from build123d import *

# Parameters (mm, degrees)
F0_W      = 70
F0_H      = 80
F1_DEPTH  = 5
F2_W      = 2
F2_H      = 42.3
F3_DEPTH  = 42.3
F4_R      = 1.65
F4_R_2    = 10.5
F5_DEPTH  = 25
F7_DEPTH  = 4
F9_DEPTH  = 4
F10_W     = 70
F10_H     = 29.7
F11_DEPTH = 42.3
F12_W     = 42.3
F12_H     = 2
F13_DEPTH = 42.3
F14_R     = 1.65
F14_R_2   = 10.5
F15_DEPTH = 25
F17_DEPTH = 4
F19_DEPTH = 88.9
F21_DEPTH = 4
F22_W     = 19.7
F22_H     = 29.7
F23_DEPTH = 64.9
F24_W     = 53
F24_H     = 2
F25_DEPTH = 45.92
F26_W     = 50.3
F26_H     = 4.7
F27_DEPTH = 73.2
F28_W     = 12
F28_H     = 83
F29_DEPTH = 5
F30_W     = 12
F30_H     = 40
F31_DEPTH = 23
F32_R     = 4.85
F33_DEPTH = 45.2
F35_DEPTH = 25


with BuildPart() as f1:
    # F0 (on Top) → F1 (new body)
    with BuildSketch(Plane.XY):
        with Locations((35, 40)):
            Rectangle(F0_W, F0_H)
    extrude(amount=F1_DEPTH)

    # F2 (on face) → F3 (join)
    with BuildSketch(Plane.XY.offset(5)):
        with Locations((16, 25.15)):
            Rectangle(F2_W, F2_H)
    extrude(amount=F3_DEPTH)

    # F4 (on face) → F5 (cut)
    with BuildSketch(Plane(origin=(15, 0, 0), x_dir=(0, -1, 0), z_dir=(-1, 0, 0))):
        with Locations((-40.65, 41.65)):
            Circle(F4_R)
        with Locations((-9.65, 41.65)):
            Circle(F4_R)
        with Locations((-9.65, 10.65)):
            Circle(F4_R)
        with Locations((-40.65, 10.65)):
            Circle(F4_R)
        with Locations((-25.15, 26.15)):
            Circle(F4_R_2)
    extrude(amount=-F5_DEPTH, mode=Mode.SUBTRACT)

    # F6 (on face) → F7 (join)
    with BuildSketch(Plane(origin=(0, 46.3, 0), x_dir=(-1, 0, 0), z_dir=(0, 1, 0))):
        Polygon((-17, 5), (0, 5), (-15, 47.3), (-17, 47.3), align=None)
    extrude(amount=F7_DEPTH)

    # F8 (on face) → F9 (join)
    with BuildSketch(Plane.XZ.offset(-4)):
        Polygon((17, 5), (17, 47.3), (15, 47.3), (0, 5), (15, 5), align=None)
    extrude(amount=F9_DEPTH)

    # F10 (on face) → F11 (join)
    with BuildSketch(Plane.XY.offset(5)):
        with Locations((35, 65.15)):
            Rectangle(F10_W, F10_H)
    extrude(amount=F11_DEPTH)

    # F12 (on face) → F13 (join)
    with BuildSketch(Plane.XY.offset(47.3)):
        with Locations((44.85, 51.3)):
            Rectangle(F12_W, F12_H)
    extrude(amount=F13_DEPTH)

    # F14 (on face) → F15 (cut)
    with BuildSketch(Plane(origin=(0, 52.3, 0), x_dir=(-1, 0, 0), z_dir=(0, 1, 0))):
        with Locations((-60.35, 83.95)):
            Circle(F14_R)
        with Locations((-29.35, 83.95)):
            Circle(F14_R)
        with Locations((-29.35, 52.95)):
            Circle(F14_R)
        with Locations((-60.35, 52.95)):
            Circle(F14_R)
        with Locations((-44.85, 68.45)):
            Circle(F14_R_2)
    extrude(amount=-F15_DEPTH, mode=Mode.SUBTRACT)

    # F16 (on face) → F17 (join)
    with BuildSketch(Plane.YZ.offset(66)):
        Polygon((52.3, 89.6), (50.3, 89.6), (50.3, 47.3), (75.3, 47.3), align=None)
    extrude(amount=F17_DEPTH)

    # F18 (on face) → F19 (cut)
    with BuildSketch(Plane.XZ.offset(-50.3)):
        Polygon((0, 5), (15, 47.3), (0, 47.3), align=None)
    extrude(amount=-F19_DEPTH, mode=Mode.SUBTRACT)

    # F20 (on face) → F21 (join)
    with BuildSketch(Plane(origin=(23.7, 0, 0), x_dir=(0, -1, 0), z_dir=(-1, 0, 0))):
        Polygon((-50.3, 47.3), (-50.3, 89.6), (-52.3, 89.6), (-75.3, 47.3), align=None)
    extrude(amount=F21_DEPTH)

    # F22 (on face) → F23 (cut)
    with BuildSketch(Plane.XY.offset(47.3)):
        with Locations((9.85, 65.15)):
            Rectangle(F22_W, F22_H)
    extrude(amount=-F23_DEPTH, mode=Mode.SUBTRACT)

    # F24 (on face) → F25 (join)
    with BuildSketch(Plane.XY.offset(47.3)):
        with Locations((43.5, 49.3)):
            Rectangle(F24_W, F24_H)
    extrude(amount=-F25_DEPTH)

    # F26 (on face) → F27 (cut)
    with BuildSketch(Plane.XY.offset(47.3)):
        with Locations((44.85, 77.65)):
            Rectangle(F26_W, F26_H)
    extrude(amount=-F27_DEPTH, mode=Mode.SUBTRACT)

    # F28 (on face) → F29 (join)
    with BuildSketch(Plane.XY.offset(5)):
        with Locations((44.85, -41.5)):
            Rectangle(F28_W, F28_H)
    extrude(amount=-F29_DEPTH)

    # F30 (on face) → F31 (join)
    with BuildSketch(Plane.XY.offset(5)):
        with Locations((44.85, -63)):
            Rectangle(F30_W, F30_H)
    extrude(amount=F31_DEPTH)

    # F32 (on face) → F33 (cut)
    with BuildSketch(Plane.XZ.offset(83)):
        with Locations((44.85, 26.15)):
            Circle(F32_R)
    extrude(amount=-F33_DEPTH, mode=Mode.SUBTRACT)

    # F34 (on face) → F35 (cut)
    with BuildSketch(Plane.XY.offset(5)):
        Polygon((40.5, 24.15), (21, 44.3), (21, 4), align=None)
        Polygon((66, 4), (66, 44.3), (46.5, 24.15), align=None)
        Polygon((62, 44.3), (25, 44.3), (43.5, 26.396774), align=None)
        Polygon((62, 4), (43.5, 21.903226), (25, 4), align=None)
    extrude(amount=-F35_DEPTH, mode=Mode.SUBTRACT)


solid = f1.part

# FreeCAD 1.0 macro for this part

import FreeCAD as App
import Part
import Sketcher

doc = App.newDocument("Part")
body = doc.addObject("PartDesign::Body", "Body")

# Sketch on XY plane
sketch1 = doc.addObject("Sketcher::SketchObject", "Sketch")
body.addObject(sketch1)
sketch1.AttachmentSupport = (doc.XY_Plane, [""])
sketch1.MapMode = "FlatFace"
sketch1.addGeometry(Part.LineSegment(App.Vector(0, 80, 0), App.Vector(0, 0, 0)), False)
sketch1.addGeometry(Part.LineSegment(App.Vector(0, 0, 0), App.Vector(70, 0, 0)), False)
sketch1.addGeometry(Part.LineSegment(App.Vector(70, 0, 0), App.Vector(70, 80, 0)), False)
sketch1.addGeometry(Part.LineSegment(App.Vector(70, 80, 0), App.Vector(0, 80, 0)), False)
sketch1.addConstraint(Sketcher.Constraint("Coincident", 0, 2, 1, 1))
sketch1.addConstraint(Sketcher.Constraint("Coincident", 1, 2, 2, 1))
sketch1.addConstraint(Sketcher.Constraint("Coincident", 2, 2, 3, 1))
sketch1.addConstraint(Sketcher.Constraint("Coincident", 3, 2, 0, 1))
sketch1.addConstraint(Sketcher.Constraint("Vertical", 0))
sketch1.addConstraint(Sketcher.Constraint("Horizontal", 1))
sketch1.addConstraint(Sketcher.Constraint("Vertical", 2))
sketch1.addConstraint(Sketcher.Constraint("Horizontal", 3))
sketch1.addConstraint(Sketcher.Constraint("Coincident", 0, 2, -1, 1))
sketch1.addConstraint(Sketcher.Constraint("DistanceX", 1, 1, 1, 2, 70.0))
sketch1.addConstraint(Sketcher.Constraint("DistanceY", 0, 2, 0, 1, 80.0))
pad1 = doc.addObject("PartDesign::Pad", "Pad")
body.addObject(pad1)
pad1.Profile = sketch1
pad1.Length = 5

# Sketch on XY plane
sketch2 = doc.addObject("Sketcher::SketchObject", "Sketch001")
body.addObject(sketch2)
sketch2.AttachmentSupport = (doc.XY_Plane, [""])
sketch2.MapMode = "FlatFace"
sketch2.AttachmentOffset = App.Placement(App.Vector(0, 0, 5), App.Rotation())
sketch2.addGeometry(Part.LineSegment(App.Vector(15, 46.3, 0), App.Vector(15, 4, 0)), False)
sketch2.addGeometry(Part.LineSegment(App.Vector(15, 4, 0), App.Vector(17, 4, 0)), False)
sketch2.addGeometry(Part.LineSegment(App.Vector(17, 4, 0), App.Vector(17, 46.3, 0)), False)
sketch2.addGeometry(Part.LineSegment(App.Vector(17, 46.3, 0), App.Vector(15, 46.3, 0)), False)
sketch2.addConstraint(Sketcher.Constraint("Coincident", 0, 2, 1, 1))
sketch2.addConstraint(Sketcher.Constraint("Coincident", 1, 2, 2, 1))
sketch2.addConstraint(Sketcher.Constraint("Coincident", 2, 2, 3, 1))
sketch2.addConstraint(Sketcher.Constraint("Coincident", 3, 2, 0, 1))
sketch2.addConstraint(Sketcher.Constraint("Vertical", 0))
sketch2.addConstraint(Sketcher.Constraint("Horizontal", 1))
sketch2.addConstraint(Sketcher.Constraint("Vertical", 2))
sketch2.addConstraint(Sketcher.Constraint("Horizontal", 3))
sketch2.addConstraint(Sketcher.Constraint("DistanceX", 1, 1, 1, 2, 2.0))
sketch2.addConstraint(Sketcher.Constraint("DistanceY", 0, 2, 0, 1, 42.3))
sketch2.addConstraint(Sketcher.Constraint("DistanceX", -1, 1, 0, 2, 15.0))
sketch2.addConstraint(Sketcher.Constraint("DistanceY", -1, 1, 0, 2, 4.0))
pad2 = doc.addObject("PartDesign::Pad", "Pad001")
body.addObject(pad2)
pad2.Profile = sketch2
pad2.Length = 42.3

# Sketch on YZ plane
sketch3 = doc.addObject("Sketcher::SketchObject", "Sketch002")
body.addObject(sketch3)
sketch3.AttachmentSupport = (doc.YZ_Plane, [""])
sketch3.MapMode = "FlatFace"
sketch3.AttachmentOffset = App.Placement(App.Vector(0, 0, 15), App.Rotation())
sketch3.addGeometry(Part.Circle(App.Vector(40.6, 41.6, 0), App.Vector(0, 0, 1), 1.6), False)
sketch3.addGeometry(Part.Circle(App.Vector(9.7, 41.6, 0), App.Vector(0, 0, 1), 1.6), False)
sketch3.addGeometry(Part.Circle(App.Vector(9.7, 10.7, 0), App.Vector(0, 0, 1), 1.6), False)
sketch3.addGeometry(Part.Circle(App.Vector(40.6, 10.7, 0), App.Vector(0, 0, 1), 1.6), False)
sketch3.addGeometry(Part.Circle(App.Vector(25.1, 26.1, 0), App.Vector(0, 0, 1), 10.5), False)
sketch3.addConstraint(Sketcher.Constraint("Equal", 0, 1))
sketch3.addConstraint(Sketcher.Constraint("Equal", 1, 2))
sketch3.addConstraint(Sketcher.Constraint("Equal", 2, 3))
sketch3.addConstraint(Sketcher.Constraint("Horizontal", 0, 3, 1, 3))
sketch3.addConstraint(Sketcher.Constraint("Horizontal", 2, 3, 3, 3))
sketch3.addConstraint(Sketcher.Constraint("Vertical", 1, 3, 2, 3))
sketch3.addConstraint(Sketcher.Constraint("Vertical", 0, 3, 3, 3))
sketch3.addConstraint(Sketcher.Constraint("Diameter", 4, 21.0))
sketch3.addConstraint(Sketcher.Constraint("Diameter", 0, 3.3))
sketch3.addConstraint(Sketcher.Constraint("DistanceX", 1, 3, 0, 3, 31.0))
sketch3.addConstraint(Sketcher.Constraint("DistanceY", 2, 3, 1, 3, 31.0))
sketch3.addConstraint(Sketcher.Constraint("DistanceX", 2, 3, 4, 3, 15.5))
sketch3.addConstraint(Sketcher.Constraint("DistanceY", 2, 3, 4, 3, 15.5))
sketch3.addConstraint(Sketcher.Constraint("DistanceX", -1, 1, 0, 3, 40.65))
sketch3.addConstraint(Sketcher.Constraint("DistanceY", -1, 1, 0, 3, 41.65))
pocket1 = doc.addObject("PartDesign::Pocket", "Pocket")
body.addObject(pocket1)
pocket1.Profile = sketch3
pocket1.Length = 25
pocket1.Reversed = True

# Sketch on XZ plane
sketch4 = doc.addObject("Sketcher::SketchObject", "Sketch003")
body.addObject(sketch4)
sketch4.AttachmentSupport = (doc.XZ_Plane, [""])
sketch4.MapMode = "FlatFace"
sketch4.AttachmentOffset = App.Placement(App.Vector(0, 0, -46.3), App.Rotation())
sketch4.addGeometry(Part.LineSegment(App.Vector(17, 5, 0), App.Vector(0, 5, 0)), False)
sketch4.addGeometry(Part.LineSegment(App.Vector(0, 5, 0), App.Vector(15, 47.3, 0)), False)
sketch4.addGeometry(Part.LineSegment(App.Vector(15, 47.3, 0), App.Vector(17, 47.3, 0)), False)
sketch4.addGeometry(Part.LineSegment(App.Vector(17, 47.3, 0), App.Vector(17, 5, 0)), False)
sketch4.addConstraint(Sketcher.Constraint("Coincident", 0, 2, 1, 1))
sketch4.addConstraint(Sketcher.Constraint("Coincident", 1, 2, 2, 1))
sketch4.addConstraint(Sketcher.Constraint("Coincident", 2, 2, 3, 1))
sketch4.addConstraint(Sketcher.Constraint("Coincident", 3, 2, 0, 1))
sketch4.addConstraint(Sketcher.Constraint("Horizontal", 0))
sketch4.addConstraint(Sketcher.Constraint("Horizontal", 2))
sketch4.addConstraint(Sketcher.Constraint("Vertical", 3))
sketch4.addConstraint(Sketcher.Constraint("PointOnObject", 0, 2, -2))
sketch4.addConstraint(Sketcher.Constraint("DistanceX", 0, 2, 0, 1, 17.0))
sketch4.addConstraint(Sketcher.Constraint("DistanceX", 2, 1, 2, 2, 2.0))
sketch4.addConstraint(Sketcher.Constraint("DistanceY", 3, 2, 3, 1, 42.3))
sketch4.addConstraint(Sketcher.Constraint("DistanceY", -1, 1, 0, 2, 5.0))
pad3 = doc.addObject("PartDesign::Pad", "Pad002")
body.addObject(pad3)
pad3.Profile = sketch4
pad3.Length = 4
pad3.Reversed = True

# Sketch on XZ plane
sketch5 = doc.addObject("Sketcher::SketchObject", "Sketch004")
body.addObject(sketch5)
sketch5.AttachmentSupport = (doc.XZ_Plane, [""])
sketch5.MapMode = "FlatFace"
sketch5.AttachmentOffset = App.Placement(App.Vector(0, 0, -4), App.Rotation())
sketch5.addGeometry(Part.LineSegment(App.Vector(17, 5, 0), App.Vector(17, 47.3, 0)), False)
sketch5.addGeometry(Part.LineSegment(App.Vector(17, 47.3, 0), App.Vector(15, 47.3, 0)), False)
sketch5.addGeometry(Part.LineSegment(App.Vector(15, 47.3, 0), App.Vector(0, 5, 0)), False)
sketch5.addGeometry(Part.LineSegment(App.Vector(0, 5, 0), App.Vector(17, 5, 0)), False)
sketch5.addConstraint(Sketcher.Constraint("Coincident", 0, 2, 1, 1))
sketch5.addConstraint(Sketcher.Constraint("Coincident", 1, 2, 2, 1))
sketch5.addConstraint(Sketcher.Constraint("Coincident", 2, 2, 3, 1))
sketch5.addConstraint(Sketcher.Constraint("Coincident", 3, 2, 0, 1))
sketch5.addConstraint(Sketcher.Constraint("Vertical", 0))
sketch5.addConstraint(Sketcher.Constraint("Horizontal", 1))
sketch5.addConstraint(Sketcher.Constraint("Horizontal", 3))
sketch5.addConstraint(Sketcher.Constraint("PointOnObject", 2, 2, -2))
sketch5.addConstraint(Sketcher.Constraint("DistanceX", 1, 2, 1, 1, 2.0))
sketch5.addConstraint(Sketcher.Constraint("DistanceX", 3, 1, 3, 2, 17.0))
sketch5.addConstraint(Sketcher.Constraint("DistanceY", 0, 1, 0, 2, 42.3))
sketch5.addConstraint(Sketcher.Constraint("DistanceY", -1, 1, 2, 2, 5.0))
pad4 = doc.addObject("PartDesign::Pad", "Pad003")
body.addObject(pad4)
pad4.Profile = sketch5
pad4.Length = 4

# Sketch on XY plane
sketch6 = doc.addObject("Sketcher::SketchObject", "Sketch005")
body.addObject(sketch6)
sketch6.AttachmentSupport = (doc.XY_Plane, [""])
sketch6.MapMode = "FlatFace"
sketch6.AttachmentOffset = App.Placement(App.Vector(0, 0, 5), App.Rotation())
sketch6.addGeometry(Part.LineSegment(App.Vector(0, 80, 0), App.Vector(0, 50, 0)), False)
sketch6.addGeometry(Part.LineSegment(App.Vector(0, 50, 0), App.Vector(70, 50, 0)), False)
sketch6.addGeometry(Part.LineSegment(App.Vector(70, 50, 0), App.Vector(70, 80, 0)), False)
sketch6.addGeometry(Part.LineSegment(App.Vector(70, 80, 0), App.Vector(0, 80, 0)), False)
sketch6.addConstraint(Sketcher.Constraint("Coincident", 0, 2, 1, 1))
sketch6.addConstraint(Sketcher.Constraint("Coincident", 1, 2, 2, 1))
sketch6.addConstraint(Sketcher.Constraint("Coincident", 2, 2, 3, 1))
sketch6.addConstraint(Sketcher.Constraint("Coincident", 3, 2, 0, 1))
sketch6.addConstraint(Sketcher.Constraint("Vertical", 0))
sketch6.addConstraint(Sketcher.Constraint("Horizontal", 1))
sketch6.addConstraint(Sketcher.Constraint("Vertical", 2))
sketch6.addConstraint(Sketcher.Constraint("Horizontal", 3))
sketch6.addConstraint(Sketcher.Constraint("PointOnObject", 0, 2, -2))
sketch6.addConstraint(Sketcher.Constraint("DistanceX", 1, 1, 1, 2, 70.0))
sketch6.addConstraint(Sketcher.Constraint("DistanceY", 0, 2, 0, 1, 29.7))
sketch6.addConstraint(Sketcher.Constraint("DistanceY", -1, 1, 2, 2, 80.0))
pad5 = doc.addObject("PartDesign::Pad", "Pad004")
body.addObject(pad5)
pad5.Profile = sketch6
pad5.Length = 42.3

# Sketch on XY plane
sketch7 = doc.addObject("Sketcher::SketchObject", "Sketch006")
body.addObject(sketch7)
sketch7.AttachmentSupport = (doc.XY_Plane, [""])
sketch7.MapMode = "FlatFace"
sketch7.AttachmentOffset = App.Placement(App.Vector(0, 0, 47.3), App.Rotation())
sketch7.addGeometry(Part.LineSegment(App.Vector(23.7, 52.3, 0), App.Vector(23.7, 50.3, 0)), False)
sketch7.addGeometry(Part.LineSegment(App.Vector(23.7, 50.3, 0), App.Vector(66, 50.3, 0)), False)
sketch7.addGeometry(Part.LineSegment(App.Vector(66, 50.3, 0), App.Vector(66, 52.3, 0)), False)
sketch7.addGeometry(Part.LineSegment(App.Vector(66, 52.3, 0), App.Vector(23.7, 52.3, 0)), False)
sketch7.addConstraint(Sketcher.Constraint("Coincident", 0, 2, 1, 1))
sketch7.addConstraint(Sketcher.Constraint("Coincident", 1, 2, 2, 1))
sketch7.addConstraint(Sketcher.Constraint("Coincident", 2, 2, 3, 1))
sketch7.addConstraint(Sketcher.Constraint("Coincident", 3, 2, 0, 1))
sketch7.addConstraint(Sketcher.Constraint("Vertical", 0))
sketch7.addConstraint(Sketcher.Constraint("Horizontal", 1))
sketch7.addConstraint(Sketcher.Constraint("Vertical", 2))
sketch7.addConstraint(Sketcher.Constraint("Horizontal", 3))
sketch7.addConstraint(Sketcher.Constraint("DistanceY", 0, 2, 0, 1, 2.0))
sketch7.addConstraint(Sketcher.Constraint("DistanceX", 1, 1, 1, 2, 42.3))
sketch7.addConstraint(Sketcher.Constraint("DistanceX", -1, 1, 1, 2, 66.0))
sketch7.addConstraint(Sketcher.Constraint("DistanceY", -1, 1, 0, 2, 50.3))
pad6 = doc.addObject("PartDesign::Pad", "Pad005")
body.addObject(pad6)
pad6.Profile = sketch7
pad6.Length = 42.3

# Sketch on XZ plane
sketch8 = doc.addObject("Sketcher::SketchObject", "Sketch007")
body.addObject(sketch8)
sketch8.AttachmentSupport = (doc.XZ_Plane, [""])
sketch8.MapMode = "FlatFace"
sketch8.AttachmentOffset = App.Placement(App.Vector(0, 0, -52.3), App.Rotation())
sketch8.addGeometry(Part.Circle(App.Vector(60.4, 84, 0), App.Vector(0, 0, 1), 1.6), False)
sketch8.addGeometry(Part.Circle(App.Vector(29.4, 84, 0), App.Vector(0, 0, 1), 1.6), False)
sketch8.addGeometry(Part.Circle(App.Vector(29.4, 53, 0), App.Vector(0, 0, 1), 1.6), False)
sketch8.addGeometry(Part.Circle(App.Vector(60.4, 53, 0), App.Vector(0, 0, 1), 1.6), False)
sketch8.addGeometry(Part.Circle(App.Vector(44.9, 68.5, 0), App.Vector(0, 0, 1), 10.5), False)
sketch8.addConstraint(Sketcher.Constraint("Equal", 0, 1))
sketch8.addConstraint(Sketcher.Constraint("Equal", 1, 2))
sketch8.addConstraint(Sketcher.Constraint("Equal", 2, 3))
sketch8.addConstraint(Sketcher.Constraint("Horizontal", 0, 3, 1, 3))
sketch8.addConstraint(Sketcher.Constraint("Horizontal", 2, 3, 3, 3))
sketch8.addConstraint(Sketcher.Constraint("Vertical", 1, 3, 2, 3))
sketch8.addConstraint(Sketcher.Constraint("Vertical", 0, 3, 3, 3))
sketch8.addConstraint(Sketcher.Constraint("Diameter", 4, 21.0))
sketch8.addConstraint(Sketcher.Constraint("Diameter", 0, 3.3))
sketch8.addConstraint(Sketcher.Constraint("DistanceX", 1, 3, 0, 3, 31.0))
sketch8.addConstraint(Sketcher.Constraint("DistanceY", 2, 3, 1, 3, 31.0))
sketch8.addConstraint(Sketcher.Constraint("DistanceX", 4, 3, 0, 3, 15.5))
sketch8.addConstraint(Sketcher.Constraint("DistanceY", 4, 3, 0, 3, 15.5))
sketch8.addConstraint(Sketcher.Constraint("DistanceX", -1, 1, 0, 3, 60.35))
sketch8.addConstraint(Sketcher.Constraint("DistanceY", -1, 1, 0, 3, 83.95))
pocket2 = doc.addObject("PartDesign::Pocket", "Pocket001")
body.addObject(pocket2)
pocket2.Profile = sketch8
pocket2.Length = 25
pocket2.Reversed = True

# Sketch on YZ plane
sketch9 = doc.addObject("Sketcher::SketchObject", "Sketch008")
body.addObject(sketch9)
sketch9.AttachmentSupport = (doc.YZ_Plane, [""])
sketch9.MapMode = "FlatFace"
sketch9.AttachmentOffset = App.Placement(App.Vector(0, 0, 66), App.Rotation())
sketch9.addGeometry(Part.LineSegment(App.Vector(52.3, 89.6, 0), App.Vector(50.3, 89.6, 0)), False)
sketch9.addGeometry(Part.LineSegment(App.Vector(50.3, 89.6, 0), App.Vector(50.3, 47.3, 0)), False)
sketch9.addGeometry(Part.LineSegment(App.Vector(50.3, 47.3, 0), App.Vector(75.3, 47.3, 0)), False)
sketch9.addGeometry(Part.LineSegment(App.Vector(75.3, 47.3, 0), App.Vector(52.3, 89.6, 0)), False)
sketch9.addConstraint(Sketcher.Constraint("Coincident", 0, 2, 1, 1))
sketch9.addConstraint(Sketcher.Constraint("Coincident", 1, 2, 2, 1))
sketch9.addConstraint(Sketcher.Constraint("Coincident", 2, 2, 3, 1))
sketch9.addConstraint(Sketcher.Constraint("Coincident", 3, 2, 0, 1))
sketch9.addConstraint(Sketcher.Constraint("Horizontal", 0))
sketch9.addConstraint(Sketcher.Constraint("Vertical", 1))
sketch9.addConstraint(Sketcher.Constraint("Horizontal", 2))
sketch9.addConstraint(Sketcher.Constraint("DistanceX", 0, 2, 0, 1, 2.0))
sketch9.addConstraint(Sketcher.Constraint("DistanceX", 2, 1, 2, 2, 25.0))
sketch9.addConstraint(Sketcher.Constraint("DistanceY", 1, 2, 1, 1, 42.3))
sketch9.addConstraint(Sketcher.Constraint("DistanceX", -1, 1, 0, 2, 50.3))
sketch9.addConstraint(Sketcher.Constraint("DistanceY", -1, 1, 0, 2, 89.6))
pad7 = doc.addObject("PartDesign::Pad", "Pad006")
body.addObject(pad7)
pad7.Profile = sketch9
pad7.Length = 4

# Sketch on XZ plane
sketch10 = doc.addObject("Sketcher::SketchObject", "Sketch009")
body.addObject(sketch10)
sketch10.AttachmentSupport = (doc.XZ_Plane, [""])
sketch10.MapMode = "FlatFace"
sketch10.AttachmentOffset = App.Placement(App.Vector(0, 0, -50.3), App.Rotation())
sketch10.addGeometry(Part.LineSegment(App.Vector(0, 5, 0), App.Vector(15, 47, 0)), False)
sketch10.addGeometry(Part.LineSegment(App.Vector(15, 47, 0), App.Vector(0, 47, 0)), False)
sketch10.addGeometry(Part.LineSegment(App.Vector(0, 47, 0), App.Vector(0, 5, 0)), False)
sketch10.addConstraint(Sketcher.Constraint("Coincident", 0, 2, 1, 1))
sketch10.addConstraint(Sketcher.Constraint("Coincident", 1, 2, 2, 1))
sketch10.addConstraint(Sketcher.Constraint("Coincident", 2, 2, 0, 1))
sketch10.addConstraint(Sketcher.Constraint("Horizontal", 1))
sketch10.addConstraint(Sketcher.Constraint("Vertical", 2))
sketch10.addConstraint(Sketcher.Constraint("PointOnObject", 1, 2, -2))
sketch10.addConstraint(Sketcher.Constraint("DistanceX", 1, 2, 1, 1, 15.0))
sketch10.addConstraint(Sketcher.Constraint("DistanceY", 2, 2, 2, 1, 42.3))
sketch10.addConstraint(Sketcher.Constraint("DistanceY", -1, 1, 2, 2, 5.0))
pocket3 = doc.addObject("PartDesign::Pocket", "Pocket002")
body.addObject(pocket3)
pocket3.Profile = sketch10
pocket3.Length = 88.9

# Sketch on YZ plane
sketch11 = doc.addObject("Sketcher::SketchObject", "Sketch010")
body.addObject(sketch11)
sketch11.AttachmentSupport = (doc.YZ_Plane, [""])
sketch11.MapMode = "FlatFace"
sketch11.AttachmentOffset = App.Placement(App.Vector(0, 0, 23.7), App.Rotation())
sketch11.addGeometry(Part.LineSegment(App.Vector(50.3, 47.3, 0), App.Vector(50.3, 89.6, 0)), False)
sketch11.addGeometry(Part.LineSegment(App.Vector(50.3, 89.6, 0), App.Vector(52.3, 89.6, 0)), False)
sketch11.addGeometry(Part.LineSegment(App.Vector(52.3, 89.6, 0), App.Vector(75.3, 47.3, 0)), False)
sketch11.addGeometry(Part.LineSegment(App.Vector(75.3, 47.3, 0), App.Vector(50.3, 47.3, 0)), False)
sketch11.addConstraint(Sketcher.Constraint("Coincident", 0, 2, 1, 1))
sketch11.addConstraint(Sketcher.Constraint("Coincident", 1, 2, 2, 1))
sketch11.addConstraint(Sketcher.Constraint("Coincident", 2, 2, 3, 1))
sketch11.addConstraint(Sketcher.Constraint("Coincident", 3, 2, 0, 1))
sketch11.addConstraint(Sketcher.Constraint("Vertical", 0))
sketch11.addConstraint(Sketcher.Constraint("Horizontal", 1))
sketch11.addConstraint(Sketcher.Constraint("Horizontal", 3))
sketch11.addConstraint(Sketcher.Constraint("DistanceX", 1, 1, 1, 2, 2.0))
sketch11.addConstraint(Sketcher.Constraint("DistanceX", 3, 2, 3, 1, 25.0))
sketch11.addConstraint(Sketcher.Constraint("DistanceY", 0, 1, 0, 2, 42.3))
sketch11.addConstraint(Sketcher.Constraint("DistanceX", -1, 1, 0, 2, 50.3))
sketch11.addConstraint(Sketcher.Constraint("DistanceY", -1, 1, 0, 2, 89.6))
pad8 = doc.addObject("PartDesign::Pad", "Pad007")
body.addObject(pad8)
pad8.Profile = sketch11
pad8.Length = 4
pad8.Reversed = True

# Sketch on XY plane
sketch12 = doc.addObject("Sketcher::SketchObject", "Sketch011")
body.addObject(sketch12)
sketch12.AttachmentSupport = (doc.XY_Plane, [""])
sketch12.MapMode = "FlatFace"
sketch12.AttachmentOffset = App.Placement(App.Vector(0, 0, 47.3), App.Rotation())
sketch12.addGeometry(Part.LineSegment(App.Vector(0, 80, 0), App.Vector(0, 50, 0)), False)
sketch12.addGeometry(Part.LineSegment(App.Vector(0, 50, 0), App.Vector(20, 50, 0)), False)
sketch12.addGeometry(Part.LineSegment(App.Vector(20, 50, 0), App.Vector(20, 80, 0)), False)
sketch12.addGeometry(Part.LineSegment(App.Vector(20, 80, 0), App.Vector(0, 80, 0)), False)
sketch12.addConstraint(Sketcher.Constraint("Coincident", 0, 2, 1, 1))
sketch12.addConstraint(Sketcher.Constraint("Coincident", 1, 2, 2, 1))
sketch12.addConstraint(Sketcher.Constraint("Coincident", 2, 2, 3, 1))
sketch12.addConstraint(Sketcher.Constraint("Coincident", 3, 2, 0, 1))
sketch12.addConstraint(Sketcher.Constraint("Vertical", 0))
sketch12.addConstraint(Sketcher.Constraint("Horizontal", 1))
sketch12.addConstraint(Sketcher.Constraint("Vertical", 2))
sketch12.addConstraint(Sketcher.Constraint("Horizontal", 3))
sketch12.addConstraint(Sketcher.Constraint("PointOnObject", 0, 2, -2))
sketch12.addConstraint(Sketcher.Constraint("DistanceX", 1, 1, 1, 2, 19.7))
sketch12.addConstraint(Sketcher.Constraint("DistanceY", 0, 2, 0, 1, 29.7))
sketch12.addConstraint(Sketcher.Constraint("DistanceY", -1, 1, 2, 2, 80.0))
pocket4 = doc.addObject("PartDesign::Pocket", "Pocket003")
body.addObject(pocket4)
pocket4.Profile = sketch12
pocket4.Length = 64.9

# Sketch on XY plane
sketch13 = doc.addObject("Sketcher::SketchObject", "Sketch012")
body.addObject(sketch13)
sketch13.AttachmentSupport = (doc.XY_Plane, [""])
sketch13.MapMode = "FlatFace"
sketch13.AttachmentOffset = App.Placement(App.Vector(0, 0, 47.3), App.Rotation())
sketch13.addGeometry(Part.LineSegment(App.Vector(17, 50.3, 0), App.Vector(17, 48.3, 0)), False)
sketch13.addGeometry(Part.LineSegment(App.Vector(17, 48.3, 0), App.Vector(70, 48.3, 0)), False)
sketch13.addGeometry(Part.LineSegment(App.Vector(70, 48.3, 0), App.Vector(70, 50.3, 0)), False)
sketch13.addGeometry(Part.LineSegment(App.Vector(70, 50.3, 0), App.Vector(17, 50.3, 0)), False)
sketch13.addConstraint(Sketcher.Constraint("Coincident", 0, 2, 1, 1))
sketch13.addConstraint(Sketcher.Constraint("Coincident", 1, 2, 2, 1))
sketch13.addConstraint(Sketcher.Constraint("Coincident", 2, 2, 3, 1))
sketch13.addConstraint(Sketcher.Constraint("Coincident", 3, 2, 0, 1))
sketch13.addConstraint(Sketcher.Constraint("Vertical", 0))
sketch13.addConstraint(Sketcher.Constraint("Horizontal", 1))
sketch13.addConstraint(Sketcher.Constraint("Vertical", 2))
sketch13.addConstraint(Sketcher.Constraint("Horizontal", 3))
sketch13.addConstraint(Sketcher.Constraint("DistanceX", 1, 1, 1, 2, 53.0))
sketch13.addConstraint(Sketcher.Constraint("DistanceY", 0, 2, 0, 1, 2.0))
sketch13.addConstraint(Sketcher.Constraint("DistanceX", -1, 1, 0, 2, 17.0))
sketch13.addConstraint(Sketcher.Constraint("DistanceY", -1, 1, 0, 2, 48.3))
pad9 = doc.addObject("PartDesign::Pad", "Pad008")
body.addObject(pad9)
pad9.Profile = sketch13
pad9.Length = 45.92
pad9.Reversed = True

# Sketch on XY plane
sketch14 = doc.addObject("Sketcher::SketchObject", "Sketch013")
body.addObject(sketch14)
sketch14.AttachmentSupport = (doc.XY_Plane, [""])
sketch14.MapMode = "FlatFace"
sketch14.AttachmentOffset = App.Placement(App.Vector(0, 0, 47.3), App.Rotation())
sketch14.addGeometry(Part.LineSegment(App.Vector(19.7, 80, 0), App.Vector(19.7, 75.3, 0)), False)
sketch14.addGeometry(Part.LineSegment(App.Vector(19.7, 75.3, 0), App.Vector(70, 75.3, 0)), False)
sketch14.addGeometry(Part.LineSegment(App.Vector(70, 75.3, 0), App.Vector(70, 80, 0)), False)
sketch14.addGeometry(Part.LineSegment(App.Vector(70, 80, 0), App.Vector(19.7, 80, 0)), False)
sketch14.addConstraint(Sketcher.Constraint("Coincident", 0, 2, 1, 1))
sketch14.addConstraint(Sketcher.Constraint("Coincident", 1, 2, 2, 1))
sketch14.addConstraint(Sketcher.Constraint("Coincident", 2, 2, 3, 1))
sketch14.addConstraint(Sketcher.Constraint("Coincident", 3, 2, 0, 1))
sketch14.addConstraint(Sketcher.Constraint("Vertical", 0))
sketch14.addConstraint(Sketcher.Constraint("Horizontal", 1))
sketch14.addConstraint(Sketcher.Constraint("Vertical", 2))
sketch14.addConstraint(Sketcher.Constraint("Horizontal", 3))
sketch14.addConstraint(Sketcher.Constraint("DistanceX", 1, 1, 1, 2, 50.3))
sketch14.addConstraint(Sketcher.Constraint("DistanceY", 0, 2, 0, 1, 4.7))
sketch14.addConstraint(Sketcher.Constraint("DistanceX", -1, 1, 1, 2, 70.0))
sketch14.addConstraint(Sketcher.Constraint("DistanceY", -1, 1, 2, 2, 80.0))
pocket5 = doc.addObject("PartDesign::Pocket", "Pocket004")
body.addObject(pocket5)
pocket5.Profile = sketch14
pocket5.Length = 73.2

# Sketch on XY plane
sketch15 = doc.addObject("Sketcher::SketchObject", "Sketch014")
body.addObject(sketch15)
sketch15.AttachmentSupport = (doc.XY_Plane, [""])
sketch15.MapMode = "FlatFace"
sketch15.AttachmentOffset = App.Placement(App.Vector(0, 0, 5), App.Rotation())
sketch15.addGeometry(Part.LineSegment(App.Vector(39, 0, 0), App.Vector(39, -83, 0)), False)
sketch15.addGeometry(Part.LineSegment(App.Vector(39, -83, 0), App.Vector(51, -83, 0)), False)
sketch15.addGeometry(Part.LineSegment(App.Vector(51, -83, 0), App.Vector(51, 0, 0)), False)
sketch15.addGeometry(Part.LineSegment(App.Vector(51, 0, 0), App.Vector(39, 0, 0)), False)
sketch15.addConstraint(Sketcher.Constraint("Coincident", 0, 2, 1, 1))
sketch15.addConstraint(Sketcher.Constraint("Coincident", 1, 2, 2, 1))
sketch15.addConstraint(Sketcher.Constraint("Coincident", 2, 2, 3, 1))
sketch15.addConstraint(Sketcher.Constraint("Coincident", 3, 2, 0, 1))
sketch15.addConstraint(Sketcher.Constraint("Vertical", 0))
sketch15.addConstraint(Sketcher.Constraint("Horizontal", 1))
sketch15.addConstraint(Sketcher.Constraint("Vertical", 2))
sketch15.addConstraint(Sketcher.Constraint("Horizontal", 3))
sketch15.addConstraint(Sketcher.Constraint("PointOnObject", 2, 2, -1))
sketch15.addConstraint(Sketcher.Constraint("DistanceX", 1, 1, 1, 2, 12.0))
sketch15.addConstraint(Sketcher.Constraint("DistanceY", 0, 2, 0, 1, 83.0))
sketch15.addConstraint(Sketcher.Constraint("DistanceX", -1, 1, 0, 2, 38.85))
pad10 = doc.addObject("PartDesign::Pad", "Pad009")
body.addObject(pad10)
pad10.Profile = sketch15
pad10.Length = 5
pad10.Reversed = True

# Sketch on XY plane
sketch16 = doc.addObject("Sketcher::SketchObject", "Sketch015")
body.addObject(sketch16)
sketch16.AttachmentSupport = (doc.XY_Plane, [""])
sketch16.MapMode = "FlatFace"
sketch16.AttachmentOffset = App.Placement(App.Vector(0, 0, 5), App.Rotation())
sketch16.addGeometry(Part.LineSegment(App.Vector(39, -43, 0), App.Vector(39, -83, 0)), False)
sketch16.addGeometry(Part.LineSegment(App.Vector(39, -83, 0), App.Vector(51, -83, 0)), False)
sketch16.addGeometry(Part.LineSegment(App.Vector(51, -83, 0), App.Vector(51, -43, 0)), False)
sketch16.addGeometry(Part.LineSegment(App.Vector(51, -43, 0), App.Vector(39, -43, 0)), False)
sketch16.addConstraint(Sketcher.Constraint("Coincident", 0, 2, 1, 1))
sketch16.addConstraint(Sketcher.Constraint("Coincident", 1, 2, 2, 1))
sketch16.addConstraint(Sketcher.Constraint("Coincident", 2, 2, 3, 1))
sketch16.addConstraint(Sketcher.Constraint("Coincident", 3, 2, 0, 1))
sketch16.addConstraint(Sketcher.Constraint("Vertical", 0))
sketch16.addConstraint(Sketcher.Constraint("Horizontal", 1))
sketch16.addConstraint(Sketcher.Constraint("Vertical", 2))
sketch16.addConstraint(Sketcher.Constraint("Horizontal", 3))
sketch16.addConstraint(Sketcher.Constraint("DistanceX", 1, 1, 1, 2, 12.0))
sketch16.addConstraint(Sketcher.Constraint("DistanceY", 0, 2, 0, 1, 40.0))
sketch16.addConstraint(Sketcher.Constraint("DistanceY", 0, 2, -1, 1, 83.0))
sketch16.addConstraint(Sketcher.Constraint("DistanceX", -1, 1, 0, 2, 38.85))
pad11 = doc.addObject("PartDesign::Pad", "Pad010")
body.addObject(pad11)
pad11.Profile = sketch16
pad11.Length = 23

# Sketch on XZ plane
sketch17 = doc.addObject("Sketcher::SketchObject", "Sketch016")
body.addObject(sketch17)
sketch17.AttachmentSupport = (doc.XZ_Plane, [""])
sketch17.MapMode = "FlatFace"
sketch17.AttachmentOffset = App.Placement(App.Vector(0, 0, 83), App.Rotation())
sketch17.addGeometry(Part.Circle(App.Vector(44.9, 26.1, 0), App.Vector(0, 0, 1), 4.8), False)
sketch17.addConstraint(Sketcher.Constraint("Diameter", 0, 9.7))
sketch17.addConstraint(Sketcher.Constraint("DistanceX", -1, 1, 0, 3, 44.85))
sketch17.addConstraint(Sketcher.Constraint("DistanceY", -1, 1, 0, 3, 26.15))
pocket6 = doc.addObject("PartDesign::Pocket", "Pocket005")
body.addObject(pocket6)
pocket6.Profile = sketch17
pocket6.Length = 45.2

# Sketch on XY plane
sketch18 = doc.addObject("Sketcher::SketchObject", "Sketch017")
body.addObject(sketch18)
sketch18.AttachmentSupport = (doc.XY_Plane, [""])
sketch18.MapMode = "FlatFace"
sketch18.AttachmentOffset = App.Placement(App.Vector(0, 0, 5), App.Rotation())
sketch18.addGeometry(Part.LineSegment(App.Vector(40, 24, 0), App.Vector(21, 44, 0)), False)
sketch18.addGeometry(Part.LineSegment(App.Vector(21, 44, 0), App.Vector(21, 4, 0)), False)
sketch18.addGeometry(Part.LineSegment(App.Vector(21, 4, 0), App.Vector(40, 24, 0)), False)
sketch18.addGeometry(Part.LineSegment(App.Vector(66, 4, 0), App.Vector(66, 44, 0)), False)
sketch18.addGeometry(Part.LineSegment(App.Vector(66, 44, 0), App.Vector(46, 24, 0)), False)
sketch18.addGeometry(Part.LineSegment(App.Vector(46, 24, 0), App.Vector(66, 4, 0)), False)
sketch18.addGeometry(Part.LineSegment(App.Vector(62, 44, 0), App.Vector(25, 44, 0)), False)
sketch18.addGeometry(Part.LineSegment(App.Vector(25, 44, 0), App.Vector(44, 26, 0)), False)
sketch18.addGeometry(Part.LineSegment(App.Vector(44, 26, 0), App.Vector(62, 44, 0)), False)
sketch18.addGeometry(Part.LineSegment(App.Vector(62, 4, 0), App.Vector(44, 22, 0)), False)
sketch18.addGeometry(Part.LineSegment(App.Vector(44, 22, 0), App.Vector(25, 4, 0)), False)
sketch18.addGeometry(Part.LineSegment(App.Vector(25, 4, 0), App.Vector(62, 4, 0)), False)
sketch18.addConstraint(Sketcher.Constraint("Coincident", 0, 2, 1, 1))
sketch18.addConstraint(Sketcher.Constraint("Coincident", 1, 2, 2, 1))
sketch18.addConstraint(Sketcher.Constraint("Coincident", 2, 2, 0, 1))
sketch18.addConstraint(Sketcher.Constraint("Coincident", 3, 2, 4, 1))
sketch18.addConstraint(Sketcher.Constraint("Coincident", 4, 2, 5, 1))
sketch18.addConstraint(Sketcher.Constraint("Coincident", 5, 2, 3, 1))
sketch18.addConstraint(Sketcher.Constraint("Coincident", 6, 2, 7, 1))
sketch18.addConstraint(Sketcher.Constraint("Coincident", 7, 2, 8, 1))
sketch18.addConstraint(Sketcher.Constraint("Coincident", 8, 2, 6, 1))
sketch18.addConstraint(Sketcher.Constraint("Coincident", 9, 2, 10, 1))
sketch18.addConstraint(Sketcher.Constraint("Coincident", 10, 2, 11, 1))
sketch18.addConstraint(Sketcher.Constraint("Coincident", 11, 2, 9, 1))
sketch18.addConstraint(Sketcher.Constraint("Vertical", 1))
sketch18.addConstraint(Sketcher.Constraint("Vertical", 3))
sketch18.addConstraint(Sketcher.Constraint("Horizontal", 6))
sketch18.addConstraint(Sketcher.Constraint("Horizontal", 11))
sketch18.addConstraint(Sketcher.Constraint("Parallel", 2, 4))
sketch18.addConstraint(Sketcher.Constraint("Parallel", 0, 5))
sketch18.addConstraint(Sketcher.Constraint("Perpendicular", 4, 7))
sketch18.addConstraint(Sketcher.Constraint("Perpendicular", 5, 8))
sketch18.addConstraint(Sketcher.Constraint("Parallel", 7, 9))
sketch18.addConstraint(Sketcher.Constraint("Parallel", 8, 10))
sketch18.addConstraint(Sketcher.Constraint("Horizontal", 0, 2, 3, 2))
sketch18.addConstraint(Sketcher.Constraint("Horizontal", 2, 2, 4, 2))
sketch18.addConstraint(Sketcher.Constraint("Horizontal", 1, 2, 5, 2))
sketch18.addConstraint(Sketcher.Constraint("Horizontal", 3, 2, 6, 2))
sketch18.addConstraint(Sketcher.Constraint("Horizontal", 5, 2, 10, 2))
sketch18.addConstraint(Sketcher.Constraint("Vertical", 7, 2, 9, 2))
sketch18.addConstraint(Sketcher.Constraint("Vertical", 6, 2, 10, 2))
sketch18.addConstraint(Sketcher.Constraint("DistanceX", 6, 2, 6, 1, 37.0))
sketch18.addConstraint(Sketcher.Constraint("DistanceY", 1, 2, 1, 1, 40.3))
sketch18.addConstraint(Sketcher.Constraint("DistanceX", -1, 1, 0, 2, 21.0))
sketch18.addConstraint(Sketcher.Constraint("DistanceY", -1, 1, 1, 2, 4.0))
sketch18.addConstraint(Sketcher.Constraint("DistanceX", -1, 1, 3, 2, 66.0))
sketch18.addConstraint(Sketcher.Constraint("DistanceX", -1, 1, 6, 2, 25.0))
sketch18.addConstraint(Sketcher.Constraint("DistanceX", 2, 2, 4, 2, 6.0))
pocket7 = doc.addObject("PartDesign::Pocket", "Pocket006")
body.addObject(pocket7)
pocket7.Profile = sketch18
pocket7.Length = 25

doc.recompute()
